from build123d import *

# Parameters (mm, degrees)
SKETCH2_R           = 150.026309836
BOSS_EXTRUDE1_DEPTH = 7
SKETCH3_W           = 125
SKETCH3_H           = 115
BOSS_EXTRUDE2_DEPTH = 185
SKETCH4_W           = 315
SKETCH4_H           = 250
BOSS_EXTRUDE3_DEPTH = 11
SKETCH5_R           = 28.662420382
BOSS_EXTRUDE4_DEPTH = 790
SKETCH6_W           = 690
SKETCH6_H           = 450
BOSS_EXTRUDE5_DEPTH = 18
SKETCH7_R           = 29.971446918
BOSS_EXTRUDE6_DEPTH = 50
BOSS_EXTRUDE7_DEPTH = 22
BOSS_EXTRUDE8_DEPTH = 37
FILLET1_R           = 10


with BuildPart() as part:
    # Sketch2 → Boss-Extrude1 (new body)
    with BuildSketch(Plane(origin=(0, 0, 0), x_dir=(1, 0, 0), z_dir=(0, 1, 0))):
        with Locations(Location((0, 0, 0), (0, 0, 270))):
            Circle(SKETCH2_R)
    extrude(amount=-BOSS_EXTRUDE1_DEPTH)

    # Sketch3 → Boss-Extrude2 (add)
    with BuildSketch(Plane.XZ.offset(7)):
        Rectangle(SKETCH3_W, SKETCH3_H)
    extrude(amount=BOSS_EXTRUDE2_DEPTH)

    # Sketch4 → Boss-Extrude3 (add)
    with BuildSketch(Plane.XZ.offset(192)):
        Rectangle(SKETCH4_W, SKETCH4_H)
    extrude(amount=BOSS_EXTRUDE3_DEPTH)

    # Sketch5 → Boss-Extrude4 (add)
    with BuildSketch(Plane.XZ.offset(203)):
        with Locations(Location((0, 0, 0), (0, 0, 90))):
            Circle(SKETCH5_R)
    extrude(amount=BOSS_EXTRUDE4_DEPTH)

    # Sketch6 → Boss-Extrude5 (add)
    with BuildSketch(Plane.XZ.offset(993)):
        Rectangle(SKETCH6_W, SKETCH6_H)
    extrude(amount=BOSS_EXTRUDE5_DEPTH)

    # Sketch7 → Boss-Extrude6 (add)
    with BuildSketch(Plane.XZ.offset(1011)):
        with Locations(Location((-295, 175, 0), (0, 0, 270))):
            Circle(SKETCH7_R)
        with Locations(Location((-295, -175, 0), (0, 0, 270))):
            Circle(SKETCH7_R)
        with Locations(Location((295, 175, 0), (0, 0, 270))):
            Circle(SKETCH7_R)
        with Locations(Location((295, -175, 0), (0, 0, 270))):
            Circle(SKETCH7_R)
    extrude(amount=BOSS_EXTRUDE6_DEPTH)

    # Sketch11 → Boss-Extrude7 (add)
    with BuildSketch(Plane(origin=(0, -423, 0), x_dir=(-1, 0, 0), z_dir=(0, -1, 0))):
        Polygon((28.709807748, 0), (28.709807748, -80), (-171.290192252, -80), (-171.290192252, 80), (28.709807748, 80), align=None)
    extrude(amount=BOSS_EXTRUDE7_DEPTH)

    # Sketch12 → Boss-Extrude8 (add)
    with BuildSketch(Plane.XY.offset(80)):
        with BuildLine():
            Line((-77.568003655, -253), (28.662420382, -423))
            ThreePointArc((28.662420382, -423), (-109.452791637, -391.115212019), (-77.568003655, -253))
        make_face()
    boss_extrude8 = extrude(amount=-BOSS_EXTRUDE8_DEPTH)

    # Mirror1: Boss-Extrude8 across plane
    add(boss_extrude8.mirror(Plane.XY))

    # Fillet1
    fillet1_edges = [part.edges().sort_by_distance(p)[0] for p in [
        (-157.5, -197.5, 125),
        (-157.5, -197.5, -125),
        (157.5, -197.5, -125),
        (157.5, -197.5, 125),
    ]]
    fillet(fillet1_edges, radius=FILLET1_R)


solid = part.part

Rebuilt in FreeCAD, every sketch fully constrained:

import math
import FreeCAD as App
import Part
import Sketcher


def edges_at(feature, points):
    """Names of the edges that pass closest to the given points."""
    edges = feature.Shape.Edges
    near = lambda p: min(range(len(edges)), key=lambda i: edges[i].distToShape(Part.Vertex(*p))[0])
    return sorted({f"Edge{near(p) + 1}" for p in points})

doc = App.newDocument("Part")
body = doc.addObject("PartDesign::Body", "Body")

# Sketch on XZ plane
sketch1 = body.newObject("Sketcher::SketchObject", "Sketch")
sketch1.AttachmentSupport = (doc.getObject("XZ_Plane"), [""])
sketch1.MapMode = "FlatFace"
sketch1.addGeometry(Part.Circle(App.Vector(0, 0, 0), App.Vector(0, 0, 1), 150), False)
sketch1.addConstraint([
    Sketcher.Constraint("Coincident", 0, 3, -1, 1),
    Sketcher.Constraint("Diameter", 0, 300.05262),
])
pad1 = body.newObject("PartDesign::Pad", "Pad")
pad1.Profile = sketch1
pad1.Length = 7

# Sketch on XZ plane
sketch2 = body.newObject("Sketcher::SketchObject", "Sketch001")
sketch2.AttachmentSupport = (doc.getObject("XZ_Plane"), [""])
sketch2.MapMode = "FlatFace"
sketch2.AttachmentOffset = App.Placement(App.Vector(0, 0, 7), App.Rotation())
sketch2.addGeometry([
    Part.LineSegment(App.Vector(-62, 58, 0), App.Vector(-62, -58, 0)),
    Part.LineSegment(App.Vector(-62, -58, 0), App.Vector(62, -58, 0)),
    Part.LineSegment(App.Vector(62, -58, 0), App.Vector(62, 58, 0)),
    Part.LineSegment(App.Vector(62, 58, 0), App.Vector(-62, 58, 0)),
], False)
sketch2.addConstraint([
    Sketcher.Constraint("Coincident", 0, 2, 1, 1),
    Sketcher.Constraint("Coincident", 1, 2, 2, 1),
    Sketcher.Constraint("Coincident", 2, 2, 3, 1),
    Sketcher.Constraint("Coincident", 3, 2, 0, 1),
    Sketcher.Constraint("Vertical", 0),
    Sketcher.Constraint("Horizontal", 1),
    Sketcher.Constraint("Vertical", 2),
    Sketcher.Constraint("Horizontal", 3),
    Sketcher.Constraint("Symmetric", 0, 2, 2, 2, -1, 1),
    Sketcher.Constraint("DistanceX", 1, 1, 1, 2, 125.0),
    Sketcher.Constraint("DistanceY", 0, 2, 0, 1, 115.0),
])
pad2 = body.newObject("PartDesign::Pad", "Pad001")
pad2.Profile = sketch2
pad2.Length = 185

# Sketch on XZ plane
sketch3 = body.newObject("Sketcher::SketchObject", "Sketch002")
sketch3.AttachmentSupport = (doc.getObject("XZ_Plane"), [""])
sketch3.MapMode = "FlatFace"
sketch3.AttachmentOffset = App.Placement(App.Vector(0, 0, 192), App.Rotation())
sketch3.addGeometry([
    Part.LineSegment(App.Vector(-158, 125, 0), App.Vector(-158, -125, 0)),
    Part.LineSegment(App.Vector(-158, -125, 0), App.Vector(158, -125, 0)),
    Part.LineSegment(App.Vector(158, -125, 0), App.Vector(158, 125, 0)),
    Part.LineSegment(App.Vector(158, 125, 0), App.Vector(-158, 125, 0)),
], False)
sketch3.addConstraint([
    Sketcher.Constraint("Coincident", 0, 2, 1, 1),
    Sketcher.Constraint("Coincident", 1, 2, 2, 1),
    Sketcher.Constraint("Coincident", 2, 2, 3, 1),
    Sketcher.Constraint("Coincident", 3, 2, 0, 1),
    Sketcher.Constraint("Vertical", 0),
    Sketcher.Constraint("Horizontal", 1),
    Sketcher.Constraint("Vertical", 2),
    Sketcher.Constraint("Horizontal", 3),
    Sketcher.Constraint("Symmetric", 0, 2, 2, 2, -1, 1),
    Sketcher.Constraint("DistanceX", 1, 1, 1, 2, 315.0),
    Sketcher.Constraint("DistanceY", 0, 2, 0, 1, 250.0),
])
pad3 = body.newObject("PartDesign::Pad", "Pad002")
pad3.Profile = sketch3
pad3.Length = 11

# Sketch on XZ plane
sketch4 = body.newObject("Sketcher::SketchObject", "Sketch003")
sketch4.AttachmentSupport = (doc.getObject("XZ_Plane"), [""])
sketch4.MapMode = "FlatFace"
sketch4.AttachmentOffset = App.Placement(App.Vector(0, 0, 203), App.Rotation())
sketch4.addGeometry(Part.Circle(App.Vector(0, 0, 0), App.Vector(0, 0, 1), 29), False)
sketch4.addConstraint([
    Sketcher.Constraint("Coincident", 0, 3, -1, 1),
    Sketcher.Constraint("Diameter", 0, 57.324841),
])
pad4 = body.newObject("PartDesign::Pad", "Pad003")
pad4.Profile = sketch4
pad4.Length = 790

# Sketch on XZ plane
sketch5 = body.newObject("Sketcher::SketchObject", "Sketch004")
sketch5.AttachmentSupport = (doc.getObject("XZ_Plane"), [""])
sketch5.MapMode = "FlatFace"
sketch5.AttachmentOffset = App.Placement(App.Vector(0, 0, 993), App.Rotation())
sketch5.addGeometry([
    Part.LineSegment(App.Vector(-345, 225, 0), App.Vector(-345, -225, 0)),
    Part.LineSegment(App.Vector(-345, -225, 0), App.Vector(345, -225, 0)),
    Part.LineSegment(App.Vector(345, -225, 0), App.Vector(345, 225, 0)),
    Part.LineSegment(App.Vector(345, 225, 0), App.Vector(-345, 225, 0)),
], False)
sketch5.addConstraint([
    Sketcher.Constraint("Coincident", 0, 2, 1, 1),
    Sketcher.Constraint("Coincident", 1, 2, 2, 1),
    Sketcher.Constraint("Coincident", 2, 2, 3, 1),
    Sketcher.Constraint("Coincident", 3, 2, 0, 1),
    Sketcher.Constraint("Vertical", 0),
    Sketcher.Constraint("Horizontal", 1),
    Sketcher.Constraint("Vertical", 2),
    Sketcher.Constraint("Horizontal", 3),
    Sketcher.Constraint("Symmetric", 0, 2, 2, 2, -1, 1),
    Sketcher.Constraint("DistanceX", 1, 1, 1, 2, 690.0),
    Sketcher.Constraint("DistanceY", 0, 2, 0, 1, 450.0),
])
pad5 = body.newObject("PartDesign::Pad", "Pad004")
pad5.Profile = sketch5
pad5.Length = 18

# Sketch on XZ plane
sketch6 = body.newObject("Sketcher::SketchObject", "Sketch005")
sketch6.AttachmentSupport = (doc.getObject("XZ_Plane"), [""])
sketch6.MapMode = "FlatFace"
sketch6.AttachmentOffset = App.Placement(App.Vector(0, 0, 1011), App.Rotation())
sketch6.addGeometry([
    Part.Circle(App.Vector(-295, 175, 0), App.Vector(0, 0, 1), 30),
    Part.Circle(App.Vector(-295, -175, 0), App.Vector(0, 0, 1), 30),
    Part.Circle(App.Vector(295, 175, 0), App.Vector(0, 0, 1), 30),
    Part.Circle(App.Vector(295, -175, 0), App.Vector(0, 0, 1), 30),
], False)
sketch6.addConstraint([
    Sketcher.Constraint("Equal", 0, 1),
    Sketcher.Constraint("Equal", 1, 2),
    Sketcher.Constraint("Equal", 2, 3),
    Sketcher.Constraint("Symmetric", 1, 3, 2, 3, -1, 1),
    Sketcher.Constraint("Symmetric", 0, 3, 3, 3, -1, 1),
    Sketcher.Constraint("Symmetric", 0, 3, 2, 3, -2),
    Sketcher.Constraint("DistanceX", 0, 3, -1, 1, 295.0),
    Sketcher.Constraint("DistanceY", -1, 1, 0, 3, 175.0),
    Sketcher.Constraint("Diameter", 0, 59.942894),
])
pad6 = body.newObject("PartDesign::Pad", "Pad005")
pad6.Profile = sketch6
pad6.Length = 50

# Sketch on XZ plane
sketch7 = body.newObject("Sketcher::SketchObject", "Sketch006")
sketch7.AttachmentSupport = (doc.getObject("XZ_Plane"), [""])
sketch7.MapMode = "FlatFace"
sketch7.AttachmentOffset = App.Placement(App.Vector(0, 0, 423), App.Rotation())
sketch7.addGeometry([
    Part.LineSegment(App.Vector(-29, 80, 0), App.Vector(-29, -80, 0)),
    Part.LineSegment(App.Vector(-29, -80, 0), App.Vector(171, -80, 0)),
    Part.LineSegment(App.Vector(171, -80, 0), App.Vector(171, 80, 0)),
    Part.LineSegment(App.Vector(171, 80, 0), App.Vector(-29, 80, 0)),
], False)
sketch7.addConstraint([
    Sketcher.Constraint("Coincident", 0, 2, 1, 1),
    Sketcher.Constraint("Coincident", 1, 2, 2, 1),
    Sketcher.Constraint("Coincident", 2, 2, 3, 1),
    Sketcher.Constraint("Coincident", 3, 2, 0, 1),
    Sketcher.Constraint("Vertical", 0),
    Sketcher.Constraint("Horizontal", 1),
    Sketcher.Constraint("Vertical", 2),
    Sketcher.Constraint("Horizontal", 3),
    Sketcher.Constraint("DistanceX", 1, 1, 1, 2, 200.0),
    Sketcher.Constraint("DistanceY", 0, 2, 0, 1, 160.0),
    Sketcher.Constraint("DistanceY", 0, 2, -1, 1, 80.0),
    Sketcher.Constraint("DistanceX", 0, 2, -1, 1, 28.709808),
])
pad7 = body.newObject("PartDesign::Pad", "Pad006")
pad7.Profile = sketch7
pad7.Length = 22

# Sketch on XY plane
sketch8 = body.newObject("Sketcher::SketchObject", "Sketch007")
sketch8.AttachmentSupport = (doc.getObject("XY_Plane"), [""])
sketch8.MapMode = "FlatFace"
sketch8.AttachmentOffset = App.Placement(App.Vector(0, 0, 80), App.Rotation())
sketch8.addGeometry([
    Part.LineSegment(App.Vector(29, -423, 0), App.Vector(-78, -253, 0)),
    Part.ArcOfCircle(Part.Circle(App.Vector(-24, -338, 0), App.Vector(0, 0, 1), 100), math.radians(122), math.radians(302)),
], False)
sketch8.addConstraint([
    Sketcher.Constraint("Coincident", 0, 1, 1, 2),
    Sketcher.Constraint("Coincident", 1, 1, 0, 2),
    Sketcher.Constraint("DistanceY", 1, 3, -1, 1, 338.0),
    Sketcher.Constraint("DistanceY", 0, 1, -1, 1, 423.0),
    Sketcher.Constraint("DistanceY", 1, 1, -1, 1, 253.0),
    Sketcher.Constraint("Radius", 1, 100.230862),
    Sketcher.Constraint("DistanceX", 1, 3, -1, 1, 24.452792),
])
pad8 = body.newObject("PartDesign::Pad", "Pad007")
pad8.Profile = sketch8
pad8.Length = 37
pad8.Reversed = True
doc.recompute()

mirrored = body.newObject("PartDesign::Mirrored", "Mirrored")
mirrored.Originals = [pad8]
mirrored.MirrorPlane = (doc.getObject("XY_Plane"), [""])
body.Tip = mirrored
doc.recompute()

fillet = body.newObject("PartDesign::Fillet", "Fillet")
fillet.Base = (mirrored, edges_at(mirrored, [
    (-157.5, -197.5, 125),
    (-157.5, -197.5, -125),
    (157.5, -197.5, -125),
    (157.5, -197.5, 125),
]))
fillet.Radius = 10

doc.recompute()
